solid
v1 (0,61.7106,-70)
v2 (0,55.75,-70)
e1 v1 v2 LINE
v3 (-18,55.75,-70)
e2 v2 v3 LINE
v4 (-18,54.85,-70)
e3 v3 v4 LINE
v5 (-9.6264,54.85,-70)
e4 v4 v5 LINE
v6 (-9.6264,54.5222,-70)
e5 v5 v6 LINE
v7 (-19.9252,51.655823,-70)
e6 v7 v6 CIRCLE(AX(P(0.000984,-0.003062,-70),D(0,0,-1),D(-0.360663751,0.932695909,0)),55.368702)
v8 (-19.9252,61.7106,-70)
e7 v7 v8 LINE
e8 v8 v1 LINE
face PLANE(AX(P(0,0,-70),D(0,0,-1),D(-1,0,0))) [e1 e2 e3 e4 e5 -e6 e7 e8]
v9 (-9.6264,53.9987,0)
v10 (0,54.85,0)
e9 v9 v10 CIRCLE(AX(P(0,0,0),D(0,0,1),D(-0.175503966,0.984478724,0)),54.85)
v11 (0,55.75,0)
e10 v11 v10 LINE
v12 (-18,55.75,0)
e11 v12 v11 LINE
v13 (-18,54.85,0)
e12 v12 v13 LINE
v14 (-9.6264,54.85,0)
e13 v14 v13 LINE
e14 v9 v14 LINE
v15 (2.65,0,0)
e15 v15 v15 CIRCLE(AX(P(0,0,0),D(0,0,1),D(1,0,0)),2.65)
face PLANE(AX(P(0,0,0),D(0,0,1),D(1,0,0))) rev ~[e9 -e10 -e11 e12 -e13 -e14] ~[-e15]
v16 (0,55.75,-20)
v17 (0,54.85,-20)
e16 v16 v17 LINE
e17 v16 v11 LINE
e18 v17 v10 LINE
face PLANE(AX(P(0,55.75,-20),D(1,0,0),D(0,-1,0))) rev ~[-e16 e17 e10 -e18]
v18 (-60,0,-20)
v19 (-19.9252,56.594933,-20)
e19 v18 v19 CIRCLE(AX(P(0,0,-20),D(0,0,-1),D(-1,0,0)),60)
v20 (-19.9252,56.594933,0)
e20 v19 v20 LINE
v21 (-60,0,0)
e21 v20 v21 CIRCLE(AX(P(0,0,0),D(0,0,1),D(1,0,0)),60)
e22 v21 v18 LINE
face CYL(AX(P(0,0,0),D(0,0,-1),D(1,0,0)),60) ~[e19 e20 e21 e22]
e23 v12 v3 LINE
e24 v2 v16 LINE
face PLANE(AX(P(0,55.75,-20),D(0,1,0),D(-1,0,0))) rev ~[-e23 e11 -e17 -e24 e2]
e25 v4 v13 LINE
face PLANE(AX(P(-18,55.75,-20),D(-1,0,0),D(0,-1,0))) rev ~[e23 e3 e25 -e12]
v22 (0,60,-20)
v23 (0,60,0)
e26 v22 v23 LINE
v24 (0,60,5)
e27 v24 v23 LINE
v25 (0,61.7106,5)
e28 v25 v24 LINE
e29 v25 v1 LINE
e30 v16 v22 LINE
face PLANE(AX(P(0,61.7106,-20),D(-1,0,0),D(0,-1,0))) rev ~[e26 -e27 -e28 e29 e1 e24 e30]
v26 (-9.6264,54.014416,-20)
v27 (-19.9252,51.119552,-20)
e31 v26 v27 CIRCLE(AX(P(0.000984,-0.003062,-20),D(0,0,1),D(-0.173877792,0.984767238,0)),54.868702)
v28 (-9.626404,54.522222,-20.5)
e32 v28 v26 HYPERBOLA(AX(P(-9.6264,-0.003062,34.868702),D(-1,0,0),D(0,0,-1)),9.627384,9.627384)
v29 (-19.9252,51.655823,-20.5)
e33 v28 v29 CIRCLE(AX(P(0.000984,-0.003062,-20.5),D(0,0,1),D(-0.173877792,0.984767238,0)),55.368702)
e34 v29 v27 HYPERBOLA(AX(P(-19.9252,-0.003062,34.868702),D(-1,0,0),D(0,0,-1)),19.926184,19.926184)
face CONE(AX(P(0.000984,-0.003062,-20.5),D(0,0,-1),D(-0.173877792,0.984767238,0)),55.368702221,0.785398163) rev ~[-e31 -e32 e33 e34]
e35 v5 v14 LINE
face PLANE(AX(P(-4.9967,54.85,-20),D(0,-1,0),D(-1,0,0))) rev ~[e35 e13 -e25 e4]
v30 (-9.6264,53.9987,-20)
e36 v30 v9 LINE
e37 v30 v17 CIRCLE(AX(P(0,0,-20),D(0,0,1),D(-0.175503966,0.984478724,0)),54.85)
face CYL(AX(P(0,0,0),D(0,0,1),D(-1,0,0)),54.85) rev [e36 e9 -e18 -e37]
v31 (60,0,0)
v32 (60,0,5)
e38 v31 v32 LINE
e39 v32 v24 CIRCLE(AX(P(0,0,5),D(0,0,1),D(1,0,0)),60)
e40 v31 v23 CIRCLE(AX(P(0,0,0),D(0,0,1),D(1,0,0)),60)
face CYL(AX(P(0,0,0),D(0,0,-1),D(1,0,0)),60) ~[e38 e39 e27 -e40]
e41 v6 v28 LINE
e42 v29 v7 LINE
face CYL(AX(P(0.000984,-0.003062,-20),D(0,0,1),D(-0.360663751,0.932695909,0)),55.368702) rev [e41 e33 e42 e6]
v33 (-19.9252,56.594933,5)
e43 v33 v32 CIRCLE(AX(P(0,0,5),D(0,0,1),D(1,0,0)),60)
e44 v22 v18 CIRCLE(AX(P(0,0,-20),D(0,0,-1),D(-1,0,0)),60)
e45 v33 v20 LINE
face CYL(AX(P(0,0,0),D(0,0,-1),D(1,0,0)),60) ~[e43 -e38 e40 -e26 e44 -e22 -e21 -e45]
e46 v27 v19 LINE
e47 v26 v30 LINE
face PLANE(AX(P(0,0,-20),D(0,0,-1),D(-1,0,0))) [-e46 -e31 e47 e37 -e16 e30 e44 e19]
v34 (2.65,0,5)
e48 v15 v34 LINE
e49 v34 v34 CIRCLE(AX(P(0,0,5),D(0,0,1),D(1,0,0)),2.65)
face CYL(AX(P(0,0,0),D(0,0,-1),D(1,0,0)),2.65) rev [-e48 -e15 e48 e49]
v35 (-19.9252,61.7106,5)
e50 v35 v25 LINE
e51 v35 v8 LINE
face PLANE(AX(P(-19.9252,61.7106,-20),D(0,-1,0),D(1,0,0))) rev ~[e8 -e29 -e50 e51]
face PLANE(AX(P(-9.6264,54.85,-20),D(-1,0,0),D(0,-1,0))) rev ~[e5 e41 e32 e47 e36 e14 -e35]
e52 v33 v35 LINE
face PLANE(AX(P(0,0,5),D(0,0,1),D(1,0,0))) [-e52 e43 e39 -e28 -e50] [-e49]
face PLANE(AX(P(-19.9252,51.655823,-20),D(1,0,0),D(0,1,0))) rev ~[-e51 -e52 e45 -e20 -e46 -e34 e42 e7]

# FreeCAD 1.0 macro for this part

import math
import FreeCAD as App
import Part
import Sketcher
from FreeCAD import Vector
Q = App.Units.Quantity


def edges_at(feature, points):
    """Names of the edges that pass closest to the given points."""
    edges = feature.Shape.Edges
    near = lambda p: min(range(len(edges)), key=lambda i: edges[i].distToShape(Part.Vertex(*p))[0])
    return sorted({f"Edge{near(p) + 1}" for p in points})


def add_polygon(sketch, points):
    """Adds a closed chain of lines whose ends are joined by coincident constraints."""
    first, n = sketch.GeometryCount, len(points)
    for a, b in zip(points, points[1:] + points[:1]):
        sketch.addGeometry(Part.LineSegment(App.Vector(*a, 0), App.Vector(*b, 0)), False)
    for i in range(n):
        sketch.addConstraint(Sketcher.Constraint("Coincident", first + i, 2, first + (i + 1) % n, 1))

doc = App.newDocument("Part")
params = doc.addObject("Spreadsheet::Sheet", "Params")
for row, (alias, value) in enumerate([
    ("sketch1_diameter", "120 mm"),
    ("sketch1_diameter2", "5.3 mm"),
    ("pad1_length", "5 mm"),
    ("sketch2_diameter", "120 mm"),
    ("sketch2_diameter2", "109.7 mm"),
    ("pad2_length", "20 mm"),
    ("sketch3_height", "0.9 mm"),
    ("sketch3_width", "18 mm"),
    ("pocket1_length", "20 mm"),
    ("sketch4_width", "18 mm"),
    ("sketch4_height", "0.9 mm"),
    ("pad3_length", "50 mm"),
    ("pad3_length2", "25 mm"),
    ("chamfer_size", "0.5 mm"),
    ("pocket2_length", "20 mm"),
], start=1):
    params.set(f"A{row}", alias)
    params.set(f"B{row}", "=" + value)
    params.setAlias(f"B{row}", alias)

body = doc.addObject("PartDesign::Body", "Body")

sketch1 = body.newObject("Sketcher::SketchObject", "Sketch")
sketch1.AttachmentSupport = (doc.getObject("XY_Plane"), [""])
sketch1.MapMode = "FlatFace"
sketch1.addGeometry([
    Part.Circle(Vector(0, 0, 0), Vector(0, 0, 1), 60),
    Part.Circle(Vector(0, 0, 0), Vector(0, 0, 1), 2.6),
], False)
sketch1.addConstraint([
    Sketcher.Constraint("Coincident", 0, 3, -1, 1),
    Sketcher.Constraint("Coincident", 1, 3, -1, 1),
    Sketcher.Constraint("Diameter", 0, Q("120 mm")),
    Sketcher.Constraint("Diameter", 1, Q("5.3 mm")),
])
sketch1.setExpression("Constraints[2]", "Params.sketch1_diameter")
sketch1.setExpression("Constraints[3]", "Params.sketch1_diameter2")
pad1 = body.newObject("PartDesign::Pad", "Pad")
pad1.Profile = sketch1
pad1.setExpression("Length", "Params.pad1_length")

sketch2 = body.newObject("Sketcher::SketchObject", "Sketch001")
sketch2.AttachmentSupport = (doc.getObject("XY_Plane"), [""])
sketch2.MapMode = "FlatFace"
sketch2.addGeometry([
    Part.Circle(Vector(0, 0, 0), Vector(0, 0, 1), 60),
    Part.Circle(Vector(0, 0, 0), Vector(0, 0, 1), 55),
], False)
sketch2.addConstraint([
    Sketcher.Constraint("Coincident", 0, 3, -1, 1),
    Sketcher.Constraint("Coincident", 1, 3, -1, 1),
    Sketcher.Constraint("Diameter", 0, Q("120 mm")),
    Sketcher.Constraint("Diameter", 1, Q("109.7 mm")),
])
sketch2.setExpression("Constraints[2]", "Params.sketch2_diameter")
sketch2.setExpression("Constraints[3]", "Params.sketch2_diameter2")
pad2 = body.newObject("PartDesign::Pad", "Pad001")
pad2.Profile = sketch2
pad2.setExpression("Length", "Params.pad2_length")
pad2.Reversed = True

sketch3 = body.newObject("Sketcher::SketchObject", "Sketch002")
sketch3.AttachmentSupport = (doc.getObject("XY_Plane"), [""])
sketch3.MapMode = "FlatFace"
sketch3.AttachmentOffset = App.Placement(Vector(0, 0, -20), App.Rotation())
add_polygon(sketch3, [(-5, 54.9), (-18, 54.9), (-18, 55.8), (0, 55.8), (0, 54.9), (-5, 54.2)])
sketch3.addConstraint([
    Sketcher.Constraint("Horizontal", 0),
    Sketcher.Constraint("Vertical", 1),
    Sketcher.Constraint("Horizontal", 2),
    Sketcher.Constraint("Vertical", 3),
    Sketcher.Constraint("Vertical", 5),
    Sketcher.Constraint("PointOnObject", 2, 2, -2),
    Sketcher.Constraint("Horizontal", 0, 2, 3, 2),
    Sketcher.Constraint("DistanceY", 1, 1, 1, 2, Q("0.9 mm")),
    Sketcher.Constraint("DistanceX", 2, 1, 2, 2, Q("18 mm")),
    Sketcher.Constraint("Angle", 4, Q("-172.4192 deg")),
    Sketcher.Constraint("DistanceY", 5, 1, 5, 2, Q("0.665 mm")),
    Sketcher.Constraint("DistanceY", -1, 1, 0, 2, Q("54.85 mm")),
])
sketch3.setExpression("Constraints[13]", "Params.sketch3_height")
sketch3.setExpression("Constraints[14]", "Params.sketch3_width")
pocket1 = body.newObject("PartDesign::Pocket", "Pocket")
pocket1.Profile = sketch3
pocket1.setExpression("Length", "Params.pocket1_length")
pocket1.Reversed = True

sketch4 = body.newObject("Sketcher::SketchObject", "Sketch003")
sketch4.AttachmentSupport = (doc.getObject("XY_Plane"), [""])
sketch4.MapMode = "FlatFace"
sketch4.AttachmentOffset = App.Placement(Vector(0, 0, -20), App.Rotation())
sketch4.addGeometry([
    Part.ArcOfCircle(Part.Circle(Vector(0, 0, 0), Vector(0, 0, 1), 55.37), math.radians(100.01), math.radians(111.09)),
    Part.LineSegment(Vector(-19.93, 51.66, 0), Vector(-19.93, 61.71, 0)),
    Part.LineSegment(Vector(-19.93, 61.71, 0), Vector(0, 61.71, 0)),
    Part.LineSegment(Vector(0, 61.71, 0), Vector(0, 55.75, 0)),
    Part.LineSegment(Vector(0, 55.75, 0), Vector(-18, 55.75, 0)),
    Part.LineSegment(Vector(-18, 55.75, 0), Vector(-18, 54.85, 0)),
    Part.LineSegment(Vector(-18, 54.85, 0), Vector(-9.63, 54.85, 0)),
    Part.LineSegment(Vector(-9.63, 54.85, 0), Vector(-9.63, 54.52, 0)),
], False)
sketch4.addConstraint([
    Sketcher.Constraint("Coincident", 0, 2, 1, 1),
    Sketcher.Constraint("Coincident", 1, 2, 2, 1),
    Sketcher.Constraint("Coincident", 2, 2, 3, 1),
    Sketcher.Constraint("Coincident", 3, 2, 4, 1),
    Sketcher.Constraint("Coincident", 4, 2, 5, 1),
    Sketcher.Constraint("Coincident", 5, 2, 6, 1),
    Sketcher.Constraint("Coincident", 6, 2, 7, 1),
    Sketcher.Constraint("Coincident", 7, 2, 0, 1),
    Sketcher.Constraint("Vertical", 1),
    Sketcher.Constraint("Horizontal", 2),
    Sketcher.Constraint("Vertical", 3),
    Sketcher.Constraint("Horizontal", 4),
    Sketcher.Constraint("Vertical", 5),
    Sketcher.Constraint("Horizontal", 6),
    Sketcher.Constraint("Vertical", 7),
    Sketcher.Constraint("PointOnObject", 2, 2, -2),
    Sketcher.Constraint("DistanceX", 4, 2, 4, 1, Q("18 mm")),
    Sketcher.Constraint("DistanceY", 5, 2, 5, 1, Q("0.9 mm")),
    Sketcher.Constraint("Radius", 0, Q("55.3687 mm")),
    Sketcher.Constraint("DistanceY", -1, 1, 3, 2, Q("55.75 mm")),
    Sketcher.Constraint("DistanceX", 2, 1, 2, 2, Q("19.9252 mm")),
    Sketcher.Constraint("DistanceX", 6, 1, 6, 2, Q("8.3736 mm")),
    Sketcher.Constraint("DistanceY", 1, 1, 1, 2, Q("10.0548 mm")),
    Sketcher.Constraint("DistanceY", 3, 2, 3, 1, Q("5.9606 mm")),
    Sketcher.Constraint("DistanceY", 7, 2, 7, 1, Q("0.3278 mm")),
])
sketch4.setExpression("Constraints[16]", "Params.sketch4_width")
sketch4.setExpression("Constraints[17]", "Params.sketch4_height")
pad3 = body.newObject("PartDesign::Pad", "Pad002")
pad3.Profile = sketch4
pad3.Type = "TwoLengths"
pad3.setExpression("Length", "Params.pad3_length")
pad3.setExpression("Length2", "Params.pad3_length2")
pad3.Reversed = True
doc.recompute()

chamfer = body.newObject("PartDesign::Chamfer", "Chamfer")
chamfer.Base = (pad3, edges_at(pad3, [(-14.845, 53.338, -20)]))
chamfer.setExpression("Size", "Params.chamfer_size")

sketch5 = body.newObject("Sketcher::SketchObject", "Sketch004")
sketch5.AttachmentSupport = (doc.getObject("XY_Plane"), [""])
sketch5.MapMode = "FlatFace"
sketch5.AttachmentOffset = App.Placement(Vector(0, 0, -20), App.Rotation())
add_polygon(sketch5, [(-9.6, 54), (-9.6, 54.9), (-5, 54.9), (-5, 54.2)])
sketch5.addConstraint([
    Sketcher.Constraint("Vertical", 0),
    Sketcher.Constraint("Horizontal", 1),
    Sketcher.Constraint("Vertical", 2),
    Sketcher.Constraint("DistanceY", -1, 1, 0, 2, Q("54.85 mm")),
    Sketcher.Constraint("DistanceY", 3, 2, 2, 2, Q("0.25 mm")),
    Sketcher.Constraint("DistanceX", 1, 1, 1, 2, Q("4.6297 mm")),
    Sketcher.Constraint("DistanceY", 0, 1, 0, 2, Q("0.8513 mm")),
    Sketcher.Constraint("DistanceX", 0, 2, -1, 1, Q("9.6264 mm")),
])
pocket2 = body.newObject("PartDesign::Pocket", "Pocket001")
pocket2.Profile = sketch5
pocket2.setExpression("Length", "Params.pocket2_length")
pocket2.Reversed = True

doc.recompute()
